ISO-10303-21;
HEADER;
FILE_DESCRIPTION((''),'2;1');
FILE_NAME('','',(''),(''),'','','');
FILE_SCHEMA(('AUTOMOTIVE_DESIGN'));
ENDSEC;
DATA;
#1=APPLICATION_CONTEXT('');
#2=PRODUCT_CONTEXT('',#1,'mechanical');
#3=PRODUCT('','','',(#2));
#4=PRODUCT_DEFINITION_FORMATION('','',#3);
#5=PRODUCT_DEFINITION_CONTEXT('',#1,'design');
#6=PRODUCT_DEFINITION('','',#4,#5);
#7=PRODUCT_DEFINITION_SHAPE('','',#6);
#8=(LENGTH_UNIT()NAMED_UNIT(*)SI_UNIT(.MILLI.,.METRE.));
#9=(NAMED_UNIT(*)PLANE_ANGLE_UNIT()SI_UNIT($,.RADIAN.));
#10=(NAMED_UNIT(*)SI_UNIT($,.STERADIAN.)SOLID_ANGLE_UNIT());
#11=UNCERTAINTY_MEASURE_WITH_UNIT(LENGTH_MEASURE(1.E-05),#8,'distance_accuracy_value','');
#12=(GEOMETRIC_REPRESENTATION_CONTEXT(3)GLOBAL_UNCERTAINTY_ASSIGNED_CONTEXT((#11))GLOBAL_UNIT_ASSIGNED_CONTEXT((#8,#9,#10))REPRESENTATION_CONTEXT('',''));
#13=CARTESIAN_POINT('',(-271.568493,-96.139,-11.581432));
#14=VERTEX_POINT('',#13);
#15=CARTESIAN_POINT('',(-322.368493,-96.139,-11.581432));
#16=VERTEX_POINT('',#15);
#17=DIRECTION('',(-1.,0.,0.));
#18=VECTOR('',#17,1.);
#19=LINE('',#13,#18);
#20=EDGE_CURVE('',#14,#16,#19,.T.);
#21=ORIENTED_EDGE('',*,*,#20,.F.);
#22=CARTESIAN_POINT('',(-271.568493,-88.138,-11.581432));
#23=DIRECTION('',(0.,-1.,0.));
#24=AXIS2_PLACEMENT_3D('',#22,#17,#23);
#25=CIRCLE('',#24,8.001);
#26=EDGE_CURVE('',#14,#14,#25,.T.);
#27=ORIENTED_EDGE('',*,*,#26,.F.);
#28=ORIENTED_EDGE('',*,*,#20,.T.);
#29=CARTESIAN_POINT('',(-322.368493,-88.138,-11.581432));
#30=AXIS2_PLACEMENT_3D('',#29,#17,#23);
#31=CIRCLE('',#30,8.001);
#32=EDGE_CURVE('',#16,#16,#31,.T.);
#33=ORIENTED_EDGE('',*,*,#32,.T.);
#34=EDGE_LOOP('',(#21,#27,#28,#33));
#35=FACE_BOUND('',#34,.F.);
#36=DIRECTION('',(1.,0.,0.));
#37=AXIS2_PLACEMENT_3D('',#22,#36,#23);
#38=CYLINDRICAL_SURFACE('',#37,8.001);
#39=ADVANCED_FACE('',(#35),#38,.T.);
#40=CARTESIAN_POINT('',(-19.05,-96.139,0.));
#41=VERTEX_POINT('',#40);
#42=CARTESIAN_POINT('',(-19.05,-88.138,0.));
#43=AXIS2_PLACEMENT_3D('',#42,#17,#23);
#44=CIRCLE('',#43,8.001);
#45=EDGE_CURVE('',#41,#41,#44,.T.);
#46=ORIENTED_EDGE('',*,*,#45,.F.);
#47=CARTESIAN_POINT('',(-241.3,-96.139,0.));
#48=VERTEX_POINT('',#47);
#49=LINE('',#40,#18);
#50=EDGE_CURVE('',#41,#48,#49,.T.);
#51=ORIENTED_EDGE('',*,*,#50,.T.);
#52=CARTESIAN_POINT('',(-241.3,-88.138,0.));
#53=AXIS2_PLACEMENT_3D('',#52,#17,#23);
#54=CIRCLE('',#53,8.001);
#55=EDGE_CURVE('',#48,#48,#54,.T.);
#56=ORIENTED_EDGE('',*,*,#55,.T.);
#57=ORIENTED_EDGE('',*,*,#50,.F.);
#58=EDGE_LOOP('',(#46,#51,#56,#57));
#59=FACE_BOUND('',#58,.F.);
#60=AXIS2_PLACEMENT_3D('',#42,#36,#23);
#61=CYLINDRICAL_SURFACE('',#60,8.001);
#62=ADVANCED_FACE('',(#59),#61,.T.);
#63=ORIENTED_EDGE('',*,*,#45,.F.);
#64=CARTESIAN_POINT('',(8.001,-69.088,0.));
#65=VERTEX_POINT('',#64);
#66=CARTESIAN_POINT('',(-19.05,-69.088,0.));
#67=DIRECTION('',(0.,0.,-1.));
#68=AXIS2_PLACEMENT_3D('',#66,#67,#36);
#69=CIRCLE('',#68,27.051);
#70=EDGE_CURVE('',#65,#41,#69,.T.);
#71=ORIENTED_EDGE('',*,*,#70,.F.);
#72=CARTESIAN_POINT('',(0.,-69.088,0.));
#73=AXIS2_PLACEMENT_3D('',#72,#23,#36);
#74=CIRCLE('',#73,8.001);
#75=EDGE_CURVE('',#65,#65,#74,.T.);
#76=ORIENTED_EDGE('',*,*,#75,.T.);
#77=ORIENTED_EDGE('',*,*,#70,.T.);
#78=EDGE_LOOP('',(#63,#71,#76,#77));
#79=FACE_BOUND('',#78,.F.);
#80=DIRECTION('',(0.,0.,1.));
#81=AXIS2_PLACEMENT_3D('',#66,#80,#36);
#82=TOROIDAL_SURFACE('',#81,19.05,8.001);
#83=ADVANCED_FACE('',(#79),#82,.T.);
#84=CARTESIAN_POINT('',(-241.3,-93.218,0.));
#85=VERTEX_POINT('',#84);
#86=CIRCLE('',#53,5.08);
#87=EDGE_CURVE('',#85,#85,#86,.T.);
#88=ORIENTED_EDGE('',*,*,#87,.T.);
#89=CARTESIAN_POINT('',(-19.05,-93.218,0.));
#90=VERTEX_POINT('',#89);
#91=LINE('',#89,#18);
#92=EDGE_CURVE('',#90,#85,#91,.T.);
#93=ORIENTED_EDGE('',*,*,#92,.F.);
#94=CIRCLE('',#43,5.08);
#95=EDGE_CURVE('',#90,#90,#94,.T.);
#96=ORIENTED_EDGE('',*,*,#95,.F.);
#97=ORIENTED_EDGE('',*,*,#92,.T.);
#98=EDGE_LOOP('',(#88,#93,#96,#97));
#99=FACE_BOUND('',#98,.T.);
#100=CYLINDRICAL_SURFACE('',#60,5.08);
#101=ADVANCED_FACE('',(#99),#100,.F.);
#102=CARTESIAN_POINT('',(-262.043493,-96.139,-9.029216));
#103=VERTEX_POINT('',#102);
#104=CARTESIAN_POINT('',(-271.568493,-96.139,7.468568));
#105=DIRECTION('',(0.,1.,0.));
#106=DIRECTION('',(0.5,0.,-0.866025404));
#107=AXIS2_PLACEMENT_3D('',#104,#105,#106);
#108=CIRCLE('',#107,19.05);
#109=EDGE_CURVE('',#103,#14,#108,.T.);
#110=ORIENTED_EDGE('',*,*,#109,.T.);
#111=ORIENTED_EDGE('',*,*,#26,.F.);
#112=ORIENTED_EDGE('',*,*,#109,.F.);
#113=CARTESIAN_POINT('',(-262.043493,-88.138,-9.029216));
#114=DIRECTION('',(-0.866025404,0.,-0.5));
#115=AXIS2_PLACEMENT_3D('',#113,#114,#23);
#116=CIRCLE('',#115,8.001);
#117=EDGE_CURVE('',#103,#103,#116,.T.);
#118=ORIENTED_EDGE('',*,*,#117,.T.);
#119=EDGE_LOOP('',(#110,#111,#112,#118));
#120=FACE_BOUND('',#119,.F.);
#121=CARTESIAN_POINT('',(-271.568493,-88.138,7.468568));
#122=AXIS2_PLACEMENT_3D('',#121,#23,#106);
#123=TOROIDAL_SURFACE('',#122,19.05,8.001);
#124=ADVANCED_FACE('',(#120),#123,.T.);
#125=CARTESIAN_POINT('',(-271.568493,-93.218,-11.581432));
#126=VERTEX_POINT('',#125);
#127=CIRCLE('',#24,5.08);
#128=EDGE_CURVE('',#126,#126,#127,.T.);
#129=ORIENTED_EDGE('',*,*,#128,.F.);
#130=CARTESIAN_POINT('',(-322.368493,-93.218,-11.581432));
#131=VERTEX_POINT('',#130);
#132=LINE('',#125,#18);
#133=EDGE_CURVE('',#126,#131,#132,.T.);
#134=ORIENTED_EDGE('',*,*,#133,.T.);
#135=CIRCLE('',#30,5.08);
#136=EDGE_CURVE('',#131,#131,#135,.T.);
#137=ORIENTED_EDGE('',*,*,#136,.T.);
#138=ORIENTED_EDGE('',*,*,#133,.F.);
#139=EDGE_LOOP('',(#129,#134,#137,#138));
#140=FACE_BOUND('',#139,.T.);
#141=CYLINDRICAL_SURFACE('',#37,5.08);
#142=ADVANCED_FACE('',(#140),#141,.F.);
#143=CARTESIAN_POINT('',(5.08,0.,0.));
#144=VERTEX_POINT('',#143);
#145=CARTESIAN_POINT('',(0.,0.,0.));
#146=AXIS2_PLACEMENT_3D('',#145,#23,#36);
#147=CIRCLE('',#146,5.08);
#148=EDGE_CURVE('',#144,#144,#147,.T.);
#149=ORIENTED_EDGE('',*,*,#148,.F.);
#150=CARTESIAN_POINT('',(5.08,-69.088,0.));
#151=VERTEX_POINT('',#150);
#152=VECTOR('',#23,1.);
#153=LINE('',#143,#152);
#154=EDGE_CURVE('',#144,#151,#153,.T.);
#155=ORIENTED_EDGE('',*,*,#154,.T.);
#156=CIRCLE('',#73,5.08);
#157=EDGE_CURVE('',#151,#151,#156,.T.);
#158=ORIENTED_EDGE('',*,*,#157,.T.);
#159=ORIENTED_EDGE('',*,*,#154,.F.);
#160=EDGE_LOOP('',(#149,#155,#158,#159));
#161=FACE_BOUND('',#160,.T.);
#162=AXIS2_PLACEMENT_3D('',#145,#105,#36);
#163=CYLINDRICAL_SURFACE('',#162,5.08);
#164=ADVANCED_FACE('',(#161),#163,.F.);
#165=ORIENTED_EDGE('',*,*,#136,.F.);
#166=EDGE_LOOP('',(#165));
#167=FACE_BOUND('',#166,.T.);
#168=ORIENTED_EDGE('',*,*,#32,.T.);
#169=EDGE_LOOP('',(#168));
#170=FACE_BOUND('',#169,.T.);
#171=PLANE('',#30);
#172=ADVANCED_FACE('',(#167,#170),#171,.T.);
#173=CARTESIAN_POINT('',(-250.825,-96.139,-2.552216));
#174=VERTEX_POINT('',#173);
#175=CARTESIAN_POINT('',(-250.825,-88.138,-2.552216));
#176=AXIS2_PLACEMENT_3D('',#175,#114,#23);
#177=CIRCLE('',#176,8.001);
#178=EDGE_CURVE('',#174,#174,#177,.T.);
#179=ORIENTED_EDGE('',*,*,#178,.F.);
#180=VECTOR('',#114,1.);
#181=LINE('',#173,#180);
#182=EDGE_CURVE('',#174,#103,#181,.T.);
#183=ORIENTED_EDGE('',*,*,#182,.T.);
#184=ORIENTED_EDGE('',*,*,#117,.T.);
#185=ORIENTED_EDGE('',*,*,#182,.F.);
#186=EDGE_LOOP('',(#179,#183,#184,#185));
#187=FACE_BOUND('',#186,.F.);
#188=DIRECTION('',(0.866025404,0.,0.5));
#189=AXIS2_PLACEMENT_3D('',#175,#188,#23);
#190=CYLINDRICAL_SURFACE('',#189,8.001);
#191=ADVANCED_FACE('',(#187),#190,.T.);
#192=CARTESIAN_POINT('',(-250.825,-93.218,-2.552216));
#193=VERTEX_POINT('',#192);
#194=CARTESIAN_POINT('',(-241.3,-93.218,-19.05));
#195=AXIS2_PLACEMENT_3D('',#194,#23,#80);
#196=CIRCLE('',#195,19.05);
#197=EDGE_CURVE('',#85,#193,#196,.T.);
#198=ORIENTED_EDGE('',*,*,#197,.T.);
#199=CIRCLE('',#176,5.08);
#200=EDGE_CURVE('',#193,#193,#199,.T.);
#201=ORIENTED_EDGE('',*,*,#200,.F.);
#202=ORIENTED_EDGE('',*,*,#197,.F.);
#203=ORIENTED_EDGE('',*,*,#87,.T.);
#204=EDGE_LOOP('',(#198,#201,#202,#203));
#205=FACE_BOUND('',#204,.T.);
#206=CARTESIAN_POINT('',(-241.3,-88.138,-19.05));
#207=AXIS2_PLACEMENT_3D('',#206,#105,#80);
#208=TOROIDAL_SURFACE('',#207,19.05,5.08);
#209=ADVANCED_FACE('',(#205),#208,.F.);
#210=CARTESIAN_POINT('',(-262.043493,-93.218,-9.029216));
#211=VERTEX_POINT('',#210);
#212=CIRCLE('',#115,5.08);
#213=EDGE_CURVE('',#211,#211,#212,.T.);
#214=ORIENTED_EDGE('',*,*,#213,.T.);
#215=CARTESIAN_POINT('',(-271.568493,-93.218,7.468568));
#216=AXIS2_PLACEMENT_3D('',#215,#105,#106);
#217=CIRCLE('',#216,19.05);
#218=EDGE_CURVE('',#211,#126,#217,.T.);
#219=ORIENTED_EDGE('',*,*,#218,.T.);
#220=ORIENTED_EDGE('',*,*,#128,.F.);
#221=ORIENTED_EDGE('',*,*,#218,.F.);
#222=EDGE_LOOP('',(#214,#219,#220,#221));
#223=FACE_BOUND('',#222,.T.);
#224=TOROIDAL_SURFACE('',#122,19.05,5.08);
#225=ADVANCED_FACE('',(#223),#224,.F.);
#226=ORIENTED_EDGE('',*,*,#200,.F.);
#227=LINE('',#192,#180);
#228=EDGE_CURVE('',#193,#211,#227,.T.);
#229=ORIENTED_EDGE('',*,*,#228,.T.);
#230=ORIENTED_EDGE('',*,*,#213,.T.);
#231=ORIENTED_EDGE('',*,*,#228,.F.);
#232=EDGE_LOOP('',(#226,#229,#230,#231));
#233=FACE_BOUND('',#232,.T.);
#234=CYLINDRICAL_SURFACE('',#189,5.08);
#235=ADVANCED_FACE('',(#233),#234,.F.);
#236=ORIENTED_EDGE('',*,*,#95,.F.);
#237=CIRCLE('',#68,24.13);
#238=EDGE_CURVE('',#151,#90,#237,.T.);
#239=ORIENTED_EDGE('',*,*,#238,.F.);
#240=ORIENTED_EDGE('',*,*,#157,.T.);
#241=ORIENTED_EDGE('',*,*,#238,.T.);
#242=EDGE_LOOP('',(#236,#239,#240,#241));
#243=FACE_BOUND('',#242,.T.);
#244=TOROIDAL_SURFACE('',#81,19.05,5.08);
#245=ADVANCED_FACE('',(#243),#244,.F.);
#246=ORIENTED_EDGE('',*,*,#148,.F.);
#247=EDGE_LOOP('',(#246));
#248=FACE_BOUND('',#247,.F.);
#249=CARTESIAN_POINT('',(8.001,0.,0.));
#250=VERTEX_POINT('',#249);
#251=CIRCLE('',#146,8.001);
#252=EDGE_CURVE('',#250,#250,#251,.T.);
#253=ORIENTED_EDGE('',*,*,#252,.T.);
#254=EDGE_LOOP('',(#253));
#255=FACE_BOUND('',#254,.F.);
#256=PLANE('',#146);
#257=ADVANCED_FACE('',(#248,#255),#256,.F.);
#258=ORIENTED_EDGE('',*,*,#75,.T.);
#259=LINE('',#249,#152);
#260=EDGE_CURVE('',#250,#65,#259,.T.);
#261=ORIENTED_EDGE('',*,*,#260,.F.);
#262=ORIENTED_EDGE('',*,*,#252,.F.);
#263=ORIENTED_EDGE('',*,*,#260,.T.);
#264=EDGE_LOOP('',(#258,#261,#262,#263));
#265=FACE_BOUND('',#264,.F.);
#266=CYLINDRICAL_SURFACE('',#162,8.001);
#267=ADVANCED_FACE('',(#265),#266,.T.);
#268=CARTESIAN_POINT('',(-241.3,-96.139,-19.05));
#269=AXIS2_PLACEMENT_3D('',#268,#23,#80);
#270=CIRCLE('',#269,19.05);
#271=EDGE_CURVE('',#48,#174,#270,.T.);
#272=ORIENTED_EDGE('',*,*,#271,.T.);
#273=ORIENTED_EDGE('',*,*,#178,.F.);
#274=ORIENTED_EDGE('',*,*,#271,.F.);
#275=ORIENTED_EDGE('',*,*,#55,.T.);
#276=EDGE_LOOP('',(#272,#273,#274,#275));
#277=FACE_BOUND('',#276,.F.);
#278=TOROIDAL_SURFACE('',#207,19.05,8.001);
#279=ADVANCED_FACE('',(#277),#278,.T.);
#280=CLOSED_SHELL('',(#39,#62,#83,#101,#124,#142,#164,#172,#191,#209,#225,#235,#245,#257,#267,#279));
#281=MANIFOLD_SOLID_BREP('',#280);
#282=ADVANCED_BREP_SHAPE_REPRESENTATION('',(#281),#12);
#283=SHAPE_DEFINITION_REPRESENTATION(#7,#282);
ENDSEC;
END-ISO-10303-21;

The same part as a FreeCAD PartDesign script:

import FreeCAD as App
import Part
import Sketcher

V = App.Vector
Q = App.Units.Quantity

doc = App.newDocument("Part")
body = doc.addObject("PartDesign::Body", "Body")

# Sketch on XZ plane
sketch1 = body.newObject("Sketcher::SketchObject", "Sketch")
sketch1.AttachmentSupport = (doc.getObject("XZ_Plane"), [""])
sketch1.MapMode = "FlatFace"
sketch1.addGeometry(Part.Circle(V(0, 0, 0), V(0, 0, 1), 8.001), False)
sketch1.addGeometry(Part.Circle(V(0, 0, 0), V(0, 0, 1), 5.08), False)
sketch1.addConstraint(Sketcher.Constraint("Coincident", 0, 3, -1, 1))
sketch1.addConstraint(Sketcher.Constraint("Coincident", 1, 3, -1, 1))
sketch1.addConstraint(Sketcher.Constraint("Diameter", 1, Q("0.4 in")))
sketch1.addConstraint(Sketcher.Constraint("Diameter", 0, Q("0.63 in")))
pad1 = body.newObject("PartDesign::Pad", "Pad")
pad1.Profile = sketch1
pad1.Length = Q("2.72 in")

# Sketch on XZ plane
sketch2 = body.newObject("Sketcher::SketchObject", "Sketch001")
sketch2.AttachmentSupport = (doc.getObject("XZ_Plane"), [""])
sketch2.MapMode = "FlatFace"
sketch2.AttachmentOffset = App.Placement(V(0, 0, 2.72 * 25.4), App.Rotation())
sketch2.addGeometry(Part.Circle(V(0, 0, 0), V(0, 0, 1), 8.001), False)
sketch2.addGeometry(Part.Circle(V(0, 0, 0), V(0, 0, 1), 5.08), False)
sketch2.addGeometry(Part.LineSegment(V(-19.05, 0, 0), V(-19.05, -10, 0)), True)  # axis
sketch2.addConstraint(Sketcher.Constraint("Vertical", 2))
sketch2.addConstraint(Sketcher.Constraint("Coincident", 0, 3, -1, 1))
sketch2.addConstraint(Sketcher.Constraint("Coincident", 1, 3, -1, 1))
sketch2.addConstraint(Sketcher.Constraint("PointOnObject", 2, 1, -1))
sketch2.addConstraint(Sketcher.Constraint("Diameter", 1, Q("0.4 in")))
sketch2.addConstraint(Sketcher.Constraint("Diameter", 0, Q("0.63 in")))
sketch2.addConstraint(Sketcher.Constraint("DistanceX", 2, 1, -1, 1, Q("0.75 in")))
sketch2.addConstraint(Sketcher.Constraint("DistanceY", 2, 2, 2, 1, 10.0))
revolution = body.newObject("PartDesign::Revolution", "Revolution")
revolution.Profile = sketch2
revolution.ReferenceAxis = (sketch2, ["Axis0"])
revolution.Angle = 90

# Sketch on YZ plane
sketch3 = body.newObject("Sketcher::SketchObject", "Sketch002")
sketch3.AttachmentSupport = (doc.getObject("YZ_Plane"), [""])
sketch3.MapMode = "FlatFace"
sketch3.AttachmentOffset = App.Placement(V(0, 0, -0.75 * 25.4), App.Rotation())
sketch3.addGeometry(Part.Circle(V(-88.138, 0, 0), V(0, 0, 1), 8.001), False)
sketch3.addGeometry(Part.Circle(V(-88.138, 0, 0), V(0, 0, 1), 5.08), False)
sketch3.addConstraint(Sketcher.Constraint("Coincident", 1, 3, 0, 3))
sketch3.addConstraint(Sketcher.Constraint("PointOnObject", 0, 3, -1))
sketch3.addConstraint(Sketcher.Constraint("Diameter", 1, Q("0.4 in")))
sketch3.addConstraint(Sketcher.Constraint("Diameter", 0, Q("0.63 in")))
sketch3.addConstraint(Sketcher.Constraint("DistanceX", 0, 3, -1, 1, Q("3.47 in")))
pad2 = body.newObject("PartDesign::Pad", "Pad001")
pad2.Profile = sketch3
pad2.Length = Q("8.75 in")
pad2.Reversed = True

# Sketch on YZ plane
sketch4 = body.newObject("Sketcher::SketchObject", "Sketch003")
sketch4.AttachmentSupport = (doc.getObject("YZ_Plane"), [""])
sketch4.MapMode = "FlatFace"
sketch4.AttachmentOffset = App.Placement(V(0, 0, -9.5 * 25.4), App.Rotation())
sketch4.addGeometry(Part.Circle(V(-88.138, 0, 0), V(0, 0, 1), 8.001), False)
sketch4.addGeometry(Part.Circle(V(-88.138, 0, 0), V(0, 0, 1), 5.08), False)
sketch4.addGeometry(Part.LineSegment(V(-88.138, -19.05, 0), V(-98.138, -19.05, 0)), True)  # axis
sketch4.addConstraint(Sketcher.Constraint("Horizontal", 2))
sketch4.addConstraint(Sketcher.Constraint("Coincident", 1, 3, 0, 3))
sketch4.addConstraint(Sketcher.Constraint("PointOnObject", 0, 3, -1))
sketch4.addConstraint(Sketcher.Constraint("Vertical", 1, 3, 2, 1))
sketch4.addConstraint(Sketcher.Constraint("Diameter", 1, Q("0.4 in")))
sketch4.addConstraint(Sketcher.Constraint("Diameter", 0, Q("0.63 in")))
sketch4.addConstraint(Sketcher.Constraint("DistanceX", 0, 3, -1, 1, Q("3.47 in")))
sketch4.addConstraint(Sketcher.Constraint("DistanceY", 2, 1, -1, 1, Q("0.75 in")))
sketch4.addConstraint(Sketcher.Constraint("DistanceX", 2, 2, 2, 1, 10.0))
revolution2 = body.newObject("PartDesign::Revolution", "Revolution001")
revolution2.Profile = sketch4
revolution2.ReferenceAxis = (sketch4, ["Axis0"])
revolution2.Angle = 30

# Sketch on an angled plane
sketch5 = body.newObject("Sketcher::SketchObject", "Sketch004")
sketch5.Placement = App.Placement(V(-189.223892, 0, -109.248465), App.Rotation(V(0, -1, 0), V(-0.5, 0, 0.866025404), V(-0.866025404, 0, -0.5), "ZXY"))
sketch5.addGeometry(Part.Circle(V(88.138, 123.202216, 0), V(0, 0, 1), 8.001), False)
sketch5.addGeometry(Part.Circle(V(88.138, 123.202216, 0), V(0, 0, 1), 5.08), False)
sketch5.addConstraint(Sketcher.Constraint("Coincident", 1, 3, 0, 3))
sketch5.addConstraint(Sketcher.Constraint("Diameter", 1, Q("0.4 in")))
sketch5.addConstraint(Sketcher.Constraint("Diameter", 0, Q("0.63 in")))
sketch5.addConstraint(Sketcher.Constraint("DistanceX", -1, 1, 0, 3, Q("3.47 in")))
sketch5.addConstraint(Sketcher.Constraint("DistanceY", -1, 1, 0, 3, 123.202216))
pad3 = body.newObject("PartDesign::Pad", "Pad002")
pad3.Profile = sketch5
pad3.Length = Q("0.51 in")

# Sketch on an angled plane
sketch6 = body.newObject("Sketcher::SketchObject", "Sketch005")
sketch6.Placement = App.Placement(V(-200.442385, 0, -115.725465), App.Rotation(V(0, -1, 0), V(-0.5, 0, 0.866025404), V(-0.866025404, 0, -0.5), "ZXY"))
sketch6.addGeometry(Part.Circle(V(88.138, 123.202216, 0), V(0, 0, 1), 8.001), False)
sketch6.addGeometry(Part.Circle(V(88.138, 123.202216, 0), V(0, 0, 1), 5.08), False)
sketch6.addGeometry(Part.LineSegment(V(88.138, 142.252216, 0), V(78.138, 142.252216, 0)), True)  # axis
sketch6.addConstraint(Sketcher.Constraint("Horizontal", 2))
sketch6.addConstraint(Sketcher.Constraint("Coincident", 1, 3, 0, 3))
sketch6.addConstraint(Sketcher.Constraint("Vertical", 1, 3, 2, 1))
sketch6.addConstraint(Sketcher.Constraint("Diameter", 1, Q("0.4 in")))
sketch6.addConstraint(Sketcher.Constraint("Diameter", 0, Q("0.63 in")))
sketch6.addConstraint(Sketcher.Constraint("DistanceX", -1, 1, 0, 3, Q("3.47 in")))
sketch6.addConstraint(Sketcher.Constraint("DistanceY", 0, 3, 2, 1, Q("0.75 in")))
sketch6.addConstraint(Sketcher.Constraint("DistanceX", 2, 2, 2, 1, 10.0))
sketch6.addConstraint(Sketcher.Constraint("DistanceY", -1, 1, 0, 3, 123.202216))
revolution3 = body.newObject("PartDesign::Revolution", "Revolution002")
revolution3.Profile = sketch6
revolution3.ReferenceAxis = (sketch6, ["Axis0"])
revolution3.Angle = 30

# Sketch on YZ plane
sketch7 = body.newObject("Sketcher::SketchObject", "Sketch006")
sketch7.AttachmentSupport = (doc.getObject("YZ_Plane"), [""])
sketch7.MapMode = "FlatFace"
sketch7.AttachmentOffset = App.Placement(V(0, 0, -271.568493), App.Rotation())
sketch7.addGeometry(Part.Circle(V(-88.138, -11.581432, 0), V(0, 0, 1), 8.001), False)
sketch7.addGeometry(Part.Circle(V(-88.138, -11.581432, 0), V(0, 0, 1), 5.08), False)
sketch7.addConstraint(Sketcher.Constraint("Coincident", 1, 3, 0, 3))
sketch7.addConstraint(Sketcher.Constraint("Diameter", 1, Q("0.4 in")))
sketch7.addConstraint(Sketcher.Constraint("Diameter", 0, Q("0.63 in")))
sketch7.addConstraint(Sketcher.Constraint("DistanceX", 0, 3, -1, 1, Q("3.47 in")))
sketch7.addConstraint(Sketcher.Constraint("DistanceY", 0, 3, -1, 1, 11.581432))
pad4 = body.newObject("PartDesign::Pad", "Pad003")
pad4.Profile = sketch7
pad4.Length = Q("2 in")
pad4.Reversed = True

doc.recompute()
